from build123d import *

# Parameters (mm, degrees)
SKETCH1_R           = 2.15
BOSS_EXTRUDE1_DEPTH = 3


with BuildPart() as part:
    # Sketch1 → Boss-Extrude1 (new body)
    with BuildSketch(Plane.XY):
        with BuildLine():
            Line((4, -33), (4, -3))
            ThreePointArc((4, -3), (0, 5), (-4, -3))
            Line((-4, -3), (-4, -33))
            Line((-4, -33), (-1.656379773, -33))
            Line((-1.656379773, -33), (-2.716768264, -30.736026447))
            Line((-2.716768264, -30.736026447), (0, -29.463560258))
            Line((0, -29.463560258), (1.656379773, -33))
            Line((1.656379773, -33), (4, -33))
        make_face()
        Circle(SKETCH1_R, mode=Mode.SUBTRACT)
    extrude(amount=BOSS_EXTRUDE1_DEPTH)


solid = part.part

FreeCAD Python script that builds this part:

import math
import FreeCAD as App
import Part
import Sketcher

doc = App.newDocument("Part")
body = doc.addObject("PartDesign::Body", "Body")

sketch1 = body.newObject("Sketcher::SketchObject", "Sketch")
sketch1.AttachmentSupport = (doc.getObject("XY_Plane"), [""])
sketch1.MapMode = "FlatFace"
sketch1.addGeometry([
    Part.LineSegment(App.Vector(4, -33, 0), App.Vector(4, -3, 0)),
    Part.ArcOfCircle(Part.Circle(App.Vector(0, 0, 0), App.Vector(0, 0, 1), 5), math.radians(-37), math.radians(217)),
    Part.LineSegment(App.Vector(-4, -3, 0), App.Vector(-4, -33, 0)),
    Part.LineSegment(App.Vector(-4, -33, 0), App.Vector(-1.7, -33, 0)),
    Part.LineSegment(App.Vector(-1.7, -33, 0), App.Vector(-2.7, -30.7, 0)),
    Part.LineSegment(App.Vector(-2.7, -30.7, 0), App.Vector(0, -29.5, 0)),
    Part.LineSegment(App.Vector(0, -29.5, 0), App.Vector(1.7, -33, 0)),
    Part.LineSegment(App.Vector(1.7, -33, 0), App.Vector(4, -33, 0)),
    Part.Circle(App.Vector(0, 0, 0), App.Vector(0, 0, 1), 2.1),
], False)
sketch1.addConstraint([
    Sketcher.Constraint("Coincident", 0, 2, 1, 1),
    Sketcher.Constraint("Coincident", 1, 2, 2, 1),
    Sketcher.Constraint("Coincident", 2, 2, 3, 1),
    Sketcher.Constraint("Coincident", 3, 2, 4, 1),
    Sketcher.Constraint("Coincident", 4, 2, 5, 1),
    Sketcher.Constraint("Coincident", 5, 2, 6, 1),
    Sketcher.Constraint("Coincident", 6, 2, 7, 1),
    Sketcher.Constraint("Coincident", 7, 2, 0, 1),
    Sketcher.Constraint("Vertical", 0),
    Sketcher.Constraint("Vertical", 2),
    Sketcher.Constraint("Horizontal", 3),
    Sketcher.Constraint("Horizontal", 7),
    Sketcher.Constraint("Coincident", 1, 3, -1, 1),
    Sketcher.Constraint("Coincident", 8, 3, -1, 1),
    Sketcher.Constraint("Symmetric", 3, 2, 6, 2, -2),
    Sketcher.Constraint("PointOnObject", 5, 2, -2),
    Sketcher.Constraint("Perpendicular", 4, 5),
    Sketcher.Constraint("Perpendicular", 5, 6),
    Sketcher.Constraint("Horizontal", 0, 2, 1, 2),
    Sketcher.Constraint("Radius", 1, 5.0),
    Sketcher.Constraint("Diameter", 8, 4.3),
    Sketcher.Constraint("DistanceY", 0, 1, 0, 2, 30.0),
    Sketcher.Constraint("Distance", 5, 3.0),
    Sketcher.Constraint("DistanceX", -1, 1, 0, 2, 4.0),
    Sketcher.Constraint("Distance", 4, 2.5),
])
pad1 = body.newObject("PartDesign::Pad", "Pad")
pad1.Profile = sketch1
pad1.Length = 3

doc.recompute()
